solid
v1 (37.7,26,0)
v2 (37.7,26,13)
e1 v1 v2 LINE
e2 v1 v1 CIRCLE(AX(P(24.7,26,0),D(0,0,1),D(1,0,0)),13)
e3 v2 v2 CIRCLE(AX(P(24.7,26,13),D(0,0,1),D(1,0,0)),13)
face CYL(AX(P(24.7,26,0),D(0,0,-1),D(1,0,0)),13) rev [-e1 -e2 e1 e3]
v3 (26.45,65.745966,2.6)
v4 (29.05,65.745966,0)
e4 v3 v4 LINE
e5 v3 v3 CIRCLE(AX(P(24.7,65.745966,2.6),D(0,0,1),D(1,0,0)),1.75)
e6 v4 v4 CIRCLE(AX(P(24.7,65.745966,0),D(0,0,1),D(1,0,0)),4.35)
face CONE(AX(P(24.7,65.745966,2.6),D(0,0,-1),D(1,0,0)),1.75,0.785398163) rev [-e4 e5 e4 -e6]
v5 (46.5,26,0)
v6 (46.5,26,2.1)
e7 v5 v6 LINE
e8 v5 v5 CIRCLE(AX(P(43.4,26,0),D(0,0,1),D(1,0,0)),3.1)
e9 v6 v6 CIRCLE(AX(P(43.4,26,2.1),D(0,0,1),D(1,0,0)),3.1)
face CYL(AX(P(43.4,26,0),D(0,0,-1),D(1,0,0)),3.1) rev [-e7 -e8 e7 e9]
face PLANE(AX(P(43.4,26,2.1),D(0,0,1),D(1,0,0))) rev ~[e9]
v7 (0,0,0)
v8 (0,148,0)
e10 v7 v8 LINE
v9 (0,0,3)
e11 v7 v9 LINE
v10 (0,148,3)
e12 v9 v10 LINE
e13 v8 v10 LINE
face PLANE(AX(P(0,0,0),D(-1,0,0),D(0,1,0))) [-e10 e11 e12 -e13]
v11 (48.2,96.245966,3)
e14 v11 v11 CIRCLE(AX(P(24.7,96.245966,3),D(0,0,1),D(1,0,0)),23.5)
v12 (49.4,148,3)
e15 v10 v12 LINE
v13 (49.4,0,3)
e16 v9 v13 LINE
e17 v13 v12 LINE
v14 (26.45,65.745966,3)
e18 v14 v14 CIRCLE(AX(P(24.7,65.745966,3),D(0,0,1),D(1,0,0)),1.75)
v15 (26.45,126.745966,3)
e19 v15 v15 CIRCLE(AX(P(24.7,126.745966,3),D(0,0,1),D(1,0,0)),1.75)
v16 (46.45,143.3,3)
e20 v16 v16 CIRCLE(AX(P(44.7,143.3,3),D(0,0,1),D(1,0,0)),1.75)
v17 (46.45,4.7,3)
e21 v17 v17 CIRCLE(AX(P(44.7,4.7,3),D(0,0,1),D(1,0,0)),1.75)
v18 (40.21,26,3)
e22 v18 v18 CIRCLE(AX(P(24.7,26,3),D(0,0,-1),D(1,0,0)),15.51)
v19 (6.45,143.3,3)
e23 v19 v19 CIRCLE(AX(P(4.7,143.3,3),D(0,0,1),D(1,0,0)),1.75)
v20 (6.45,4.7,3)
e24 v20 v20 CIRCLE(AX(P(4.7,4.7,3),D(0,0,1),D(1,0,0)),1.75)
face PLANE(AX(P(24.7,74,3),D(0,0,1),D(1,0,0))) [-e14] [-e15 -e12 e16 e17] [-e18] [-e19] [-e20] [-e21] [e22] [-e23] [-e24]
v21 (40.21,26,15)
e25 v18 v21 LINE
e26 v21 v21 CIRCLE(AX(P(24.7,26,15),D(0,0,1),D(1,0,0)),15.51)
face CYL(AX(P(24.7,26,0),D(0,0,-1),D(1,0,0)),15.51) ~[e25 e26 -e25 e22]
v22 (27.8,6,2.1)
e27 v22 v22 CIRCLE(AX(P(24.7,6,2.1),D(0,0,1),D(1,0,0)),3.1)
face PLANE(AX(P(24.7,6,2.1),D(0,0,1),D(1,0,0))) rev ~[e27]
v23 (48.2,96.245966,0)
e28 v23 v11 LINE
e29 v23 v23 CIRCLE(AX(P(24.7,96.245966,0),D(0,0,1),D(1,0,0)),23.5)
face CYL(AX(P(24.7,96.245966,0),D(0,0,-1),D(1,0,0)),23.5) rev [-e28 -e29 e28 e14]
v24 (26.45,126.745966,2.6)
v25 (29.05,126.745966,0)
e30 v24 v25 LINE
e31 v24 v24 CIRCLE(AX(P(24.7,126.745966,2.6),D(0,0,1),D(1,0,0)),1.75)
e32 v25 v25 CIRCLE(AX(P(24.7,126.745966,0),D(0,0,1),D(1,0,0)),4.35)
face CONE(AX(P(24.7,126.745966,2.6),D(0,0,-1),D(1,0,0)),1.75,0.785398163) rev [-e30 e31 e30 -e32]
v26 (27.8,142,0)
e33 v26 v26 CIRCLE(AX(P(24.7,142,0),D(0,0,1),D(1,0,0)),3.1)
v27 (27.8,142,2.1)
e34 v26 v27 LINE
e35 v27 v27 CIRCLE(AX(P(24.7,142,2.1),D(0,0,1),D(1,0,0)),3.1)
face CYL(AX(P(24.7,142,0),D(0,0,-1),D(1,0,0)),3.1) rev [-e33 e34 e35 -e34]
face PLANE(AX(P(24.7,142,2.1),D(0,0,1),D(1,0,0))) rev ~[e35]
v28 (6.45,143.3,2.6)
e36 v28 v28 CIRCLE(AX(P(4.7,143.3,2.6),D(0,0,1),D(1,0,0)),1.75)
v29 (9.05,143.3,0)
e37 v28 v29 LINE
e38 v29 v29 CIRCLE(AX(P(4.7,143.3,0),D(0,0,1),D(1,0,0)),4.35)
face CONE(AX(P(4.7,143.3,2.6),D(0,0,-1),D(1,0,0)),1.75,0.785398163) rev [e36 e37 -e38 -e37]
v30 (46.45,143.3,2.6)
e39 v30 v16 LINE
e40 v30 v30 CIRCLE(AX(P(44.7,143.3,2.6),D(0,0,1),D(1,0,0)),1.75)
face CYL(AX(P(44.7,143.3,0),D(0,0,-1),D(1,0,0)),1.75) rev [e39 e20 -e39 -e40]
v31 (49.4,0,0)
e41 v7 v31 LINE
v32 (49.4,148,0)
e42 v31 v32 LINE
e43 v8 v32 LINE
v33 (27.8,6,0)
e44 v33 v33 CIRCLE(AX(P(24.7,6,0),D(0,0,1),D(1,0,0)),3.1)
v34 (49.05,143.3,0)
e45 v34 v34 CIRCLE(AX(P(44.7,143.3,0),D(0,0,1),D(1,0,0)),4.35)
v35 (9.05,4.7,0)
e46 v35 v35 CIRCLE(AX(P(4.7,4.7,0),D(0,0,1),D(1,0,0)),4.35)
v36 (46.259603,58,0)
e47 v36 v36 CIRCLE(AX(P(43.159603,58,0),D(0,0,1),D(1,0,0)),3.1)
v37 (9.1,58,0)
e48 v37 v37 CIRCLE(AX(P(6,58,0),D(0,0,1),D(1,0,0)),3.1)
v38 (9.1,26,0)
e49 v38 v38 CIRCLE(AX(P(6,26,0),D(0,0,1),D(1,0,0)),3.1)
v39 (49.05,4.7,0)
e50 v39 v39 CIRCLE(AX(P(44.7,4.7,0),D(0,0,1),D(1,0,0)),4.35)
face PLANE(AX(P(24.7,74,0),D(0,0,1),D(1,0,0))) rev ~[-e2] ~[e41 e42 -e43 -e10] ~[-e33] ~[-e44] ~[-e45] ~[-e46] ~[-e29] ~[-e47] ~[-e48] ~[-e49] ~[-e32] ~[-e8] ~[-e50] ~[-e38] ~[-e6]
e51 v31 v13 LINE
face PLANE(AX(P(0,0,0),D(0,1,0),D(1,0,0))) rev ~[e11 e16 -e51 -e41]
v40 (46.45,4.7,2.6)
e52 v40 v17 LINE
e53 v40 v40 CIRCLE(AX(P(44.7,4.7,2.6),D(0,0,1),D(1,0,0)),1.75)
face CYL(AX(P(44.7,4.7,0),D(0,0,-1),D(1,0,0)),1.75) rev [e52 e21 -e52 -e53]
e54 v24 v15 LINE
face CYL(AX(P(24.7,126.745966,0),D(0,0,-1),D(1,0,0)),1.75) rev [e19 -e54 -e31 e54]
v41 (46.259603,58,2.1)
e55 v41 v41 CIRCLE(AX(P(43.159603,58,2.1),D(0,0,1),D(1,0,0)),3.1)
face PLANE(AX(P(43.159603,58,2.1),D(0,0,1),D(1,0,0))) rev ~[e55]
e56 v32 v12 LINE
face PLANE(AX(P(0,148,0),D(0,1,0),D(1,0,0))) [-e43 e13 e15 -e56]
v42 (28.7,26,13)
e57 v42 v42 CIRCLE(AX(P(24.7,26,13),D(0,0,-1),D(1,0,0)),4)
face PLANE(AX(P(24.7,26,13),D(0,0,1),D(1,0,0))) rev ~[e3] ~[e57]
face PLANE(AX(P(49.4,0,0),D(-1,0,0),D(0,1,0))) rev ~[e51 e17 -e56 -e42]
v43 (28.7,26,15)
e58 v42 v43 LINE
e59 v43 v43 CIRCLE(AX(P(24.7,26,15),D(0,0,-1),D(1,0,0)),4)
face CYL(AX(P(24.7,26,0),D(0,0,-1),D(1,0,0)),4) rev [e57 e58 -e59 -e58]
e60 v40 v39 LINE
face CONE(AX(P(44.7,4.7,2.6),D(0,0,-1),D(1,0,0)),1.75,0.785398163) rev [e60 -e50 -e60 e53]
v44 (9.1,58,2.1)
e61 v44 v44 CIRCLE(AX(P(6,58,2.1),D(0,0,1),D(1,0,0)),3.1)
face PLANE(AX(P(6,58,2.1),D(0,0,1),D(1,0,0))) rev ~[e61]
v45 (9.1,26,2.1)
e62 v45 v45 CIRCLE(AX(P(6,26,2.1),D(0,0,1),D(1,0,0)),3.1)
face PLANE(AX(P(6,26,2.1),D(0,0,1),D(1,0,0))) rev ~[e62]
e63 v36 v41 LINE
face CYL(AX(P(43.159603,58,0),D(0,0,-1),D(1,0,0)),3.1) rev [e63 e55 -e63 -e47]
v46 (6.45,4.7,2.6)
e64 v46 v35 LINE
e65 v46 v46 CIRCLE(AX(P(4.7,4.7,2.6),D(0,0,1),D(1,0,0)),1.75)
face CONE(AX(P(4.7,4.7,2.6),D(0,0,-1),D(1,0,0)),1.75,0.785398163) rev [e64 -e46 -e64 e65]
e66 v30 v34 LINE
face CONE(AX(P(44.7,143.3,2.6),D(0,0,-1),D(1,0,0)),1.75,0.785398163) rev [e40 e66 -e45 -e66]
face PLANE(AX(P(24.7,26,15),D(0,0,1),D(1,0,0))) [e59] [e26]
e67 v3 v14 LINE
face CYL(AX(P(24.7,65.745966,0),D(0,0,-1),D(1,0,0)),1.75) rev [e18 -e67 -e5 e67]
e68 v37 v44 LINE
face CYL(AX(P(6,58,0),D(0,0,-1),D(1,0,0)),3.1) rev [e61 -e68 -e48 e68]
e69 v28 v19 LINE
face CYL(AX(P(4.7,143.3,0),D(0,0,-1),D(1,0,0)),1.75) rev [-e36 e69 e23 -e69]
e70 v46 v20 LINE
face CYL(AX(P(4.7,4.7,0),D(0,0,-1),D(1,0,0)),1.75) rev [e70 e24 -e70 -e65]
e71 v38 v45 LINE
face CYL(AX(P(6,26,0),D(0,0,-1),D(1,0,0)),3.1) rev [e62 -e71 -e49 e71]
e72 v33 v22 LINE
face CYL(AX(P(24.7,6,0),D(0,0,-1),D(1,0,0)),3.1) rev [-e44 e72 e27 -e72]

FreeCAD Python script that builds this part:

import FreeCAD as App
import Part
import Sketcher

V = App.Vector
Q = App.Units.Quantity


def edges_at(feature, points):
    """Names of the edges that pass closest to the given points."""
    edges = feature.Shape.Edges
    near = lambda p: min(range(len(edges)), key=lambda i: edges[i].distToShape(Part.Vertex(*p))[0])
    return sorted({f"Edge{near(p) + 1}" for p in points})

doc = App.newDocument("Part")
body = doc.addObject("PartDesign::Body", "Body")

# Sketch on XY plane
sketch1 = body.newObject("Sketcher::SketchObject", "Sketch")
sketch1.AttachmentSupport = (doc.getObject("XY_Plane"), [""])
sketch1.MapMode = "FlatFace"
sketch1.addGeometry(Part.LineSegment(V(0, 148, 0), V(0, 0, 0)), False)
sketch1.addGeometry(Part.LineSegment(V(0, 0, 0), V(49.4, 0, 0)), False)
sketch1.addGeometry(Part.LineSegment(V(49.4, 0, 0), V(49.4, 148, 0)), False)
sketch1.addGeometry(Part.LineSegment(V(49.4, 148, 0), V(0, 148, 0)), False)
sketch1.addGeometry(Part.Circle(V(4.7, 4.7, 0), V(0, 0, 1), 1.8), False)
sketch1.addGeometry(Part.Circle(V(24.7, 26, 0), V(0, 0, 1), 13), False)
sketch1.addGeometry(Part.Circle(V(44.7, 4.7, 0), V(0, 0, 1), 1.8), False)
sketch1.addGeometry(Part.Circle(V(24.7, 65.7, 0), V(0, 0, 1), 1.8), False)
sketch1.addGeometry(Part.Circle(V(4.7, 143.3, 0), V(0, 0, 1), 1.8), False)
sketch1.addGeometry(Part.Circle(V(24.7, 96.2, 0), V(0, 0, 1), 23.5), False)
sketch1.addGeometry(Part.Circle(V(24.7, 126.7, 0), V(0, 0, 1), 1.8), False)
sketch1.addGeometry(Part.Circle(V(44.7, 143.3, 0), V(0, 0, 1), 1.8), False)
sketch1.addConstraint(Sketcher.Constraint("Coincident", 0, 2, 1, 1))
sketch1.addConstraint(Sketcher.Constraint("Coincident", 1, 2, 2, 1))
sketch1.addConstraint(Sketcher.Constraint("Coincident", 2, 2, 3, 1))
sketch1.addConstraint(Sketcher.Constraint("Coincident", 3, 2, 0, 1))
sketch1.addConstraint(Sketcher.Constraint("Vertical", 0))
sketch1.addConstraint(Sketcher.Constraint("Horizontal", 1))
sketch1.addConstraint(Sketcher.Constraint("Vertical", 2))
sketch1.addConstraint(Sketcher.Constraint("Horizontal", 3))
sketch1.addConstraint(Sketcher.Constraint("Coincident", 0, 2, -1, 1))
sketch1.addConstraint(Sketcher.Constraint("Equal", 4, 6))
sketch1.addConstraint(Sketcher.Constraint("Equal", 6, 7))
sketch1.addConstraint(Sketcher.Constraint("Equal", 7, 8))
sketch1.addConstraint(Sketcher.Constraint("Equal", 8, 10))
sketch1.addConstraint(Sketcher.Constraint("Equal", 10, 11))
sketch1.addConstraint(Sketcher.Constraint("Horizontal", 4, 3, 6, 3))
sketch1.addConstraint(Sketcher.Constraint("Horizontal", 8, 3, 11, 3))
sketch1.addConstraint(Sketcher.Constraint("Vertical", 5, 3, 7, 3))
sketch1.addConstraint(Sketcher.Constraint("Vertical", 4, 3, 8, 3))
sketch1.addConstraint(Sketcher.Constraint("Vertical", 7, 3, 9, 3))
sketch1.addConstraint(Sketcher.Constraint("Vertical", 9, 3, 10, 3))
sketch1.addConstraint(Sketcher.Constraint("Vertical", 6, 3, 11, 3))
sketch1.addConstraint(Sketcher.Constraint("Diameter", 5, Q("26 mm")))
sketch1.addConstraint(Sketcher.Constraint("Diameter", 9, Q("47 mm")))
sketch1.addConstraint(Sketcher.Constraint("Diameter", 4, Q("3.5 mm")))
sketch1.addConstraint(Sketcher.Constraint("DistanceY", 0, 2, 0, 1, Q("148 mm")))
sketch1.addConstraint(Sketcher.Constraint("DistanceX", 1, 1, 1, 2, Q("49.4 mm")))
sketch1.addConstraint(Sketcher.Constraint("DistanceY", -1, 1, 5, 3, Q("26 mm")))
sketch1.addConstraint(Sketcher.Constraint("DistanceX", 4, 3, 5, 3, Q("20 mm")))
sketch1.addConstraint(Sketcher.Constraint("DistanceX", 5, 3, 6, 3, Q("20 mm")))
sketch1.addConstraint(Sketcher.Constraint("DistanceY", 7, 3, 10, 3, Q("61 mm")))
sketch1.addConstraint(Sketcher.Constraint("DistanceX", -1, 1, 4, 3, Q("4.7 mm")))
sketch1.addConstraint(Sketcher.Constraint("DistanceY", -1, 1, 4, 3, Q("4.7 mm")))
sketch1.addConstraint(Sketcher.Constraint("DistanceY", -1, 1, 8, 3, Q("143.3 mm")))
sketch1.addConstraint(Sketcher.Constraint("DistanceY", 7, 3, 9, 3, Q("30.5 mm")))
sketch1.addConstraint(Sketcher.Constraint("DistanceY", -1, 1, 7, 3, Q("65.745966 mm")))
pad1 = body.newObject("PartDesign::Pad", "Pad")
pad1.Profile = sketch1
pad1.Length = 3
doc.recompute()

chamfer = body.newObject("PartDesign::Chamfer", "Chamfer")
chamfer.Base = (pad1, edges_at(pad1, [
    (2.95, 4.7, 0),
    (42.95, 4.7, 0),
    (22.95, 65.746, 0),
    (22.95, 126.746, 0),
    (2.95, 143.3, 0),
    (42.95, 143.3, 0),
]))
chamfer.Size = 2.6

# Sketch on XY plane
sketch2 = body.newObject("Sketcher::SketchObject", "Sketch001")
sketch2.AttachmentSupport = (doc.getObject("XY_Plane"), [""])
sketch2.MapMode = "FlatFace"
sketch2.addGeometry(Part.Circle(V(24.7, 142, 0), V(0, 0, 1), 3.1), False)
sketch2.addGeometry(Part.Circle(V(24.7, 6, 0), V(0, 0, 1), 3.1), False)
sketch2.addGeometry(Part.Circle(V(43.4, 26, 0), V(0, 0, 1), 3.1), False)
sketch2.addGeometry(Part.Circle(V(6, 26, 0), V(0, 0, 1), 3.1), False)
sketch2.addGeometry(Part.Circle(V(6, 58, 0), V(0, 0, 1), 3.1), False)
sketch2.addGeometry(Part.Circle(V(43.2, 58, 0), V(0, 0, 1), 3.1), False)
sketch2.addConstraint(Sketcher.Constraint("Equal", 0, 1))
sketch2.addConstraint(Sketcher.Constraint("Equal", 1, 2))
sketch2.addConstraint(Sketcher.Constraint("Equal", 2, 3))
sketch2.addConstraint(Sketcher.Constraint("Equal", 3, 4))
sketch2.addConstraint(Sketcher.Constraint("Equal", 4, 5))
sketch2.addConstraint(Sketcher.Constraint("Horizontal", 2, 3, 3, 3))
sketch2.addConstraint(Sketcher.Constraint("Horizontal", 4, 3, 5, 3))
sketch2.addConstraint(Sketcher.Constraint("Vertical", 0, 3, 1, 3))
sketch2.addConstraint(Sketcher.Constraint("Vertical", 3, 3, 4, 3))
sketch2.addConstraint(Sketcher.Constraint("Diameter", 0, Q("6.2 mm")))
sketch2.addConstraint(Sketcher.Constraint("DistanceY", -1, 1, 0, 3, Q("142 mm")))
sketch2.addConstraint(Sketcher.Constraint("DistanceY", -1, 1, 1, 3, Q("6 mm")))
sketch2.addConstraint(Sketcher.Constraint("DistanceY", -1, 1, 2, 3, Q("26 mm")))
sketch2.addConstraint(Sketcher.Constraint("DistanceX", -1, 1, 3, 3, Q("6 mm")))
sketch2.addConstraint(Sketcher.Constraint("DistanceY", -1, 1, 4, 3, Q("58 mm")))
sketch2.addConstraint(Sketcher.Constraint("DistanceX", -1, 1, 0, 3, Q("24.7 mm")))
sketch2.addConstraint(Sketcher.Constraint("DistanceX", -1, 1, 2, 3, Q("43.4 mm")))
sketch2.addConstraint(Sketcher.Constraint("DistanceX", -1, 1, 5, 3, Q("43.159603 mm")))
pocket1 = body.newObject("PartDesign::Pocket", "Pocket")
pocket1.Profile = sketch2
pocket1.Length = 2.1
pocket1.Reversed = True

# Sketch on XY plane
sketch3 = body.newObject("Sketcher::SketchObject", "Sketch002")
sketch3.AttachmentSupport = (doc.getObject("XY_Plane"), [""])
sketch3.MapMode = "FlatFace"
sketch3.addGeometry(Part.Circle(V(25, 26, 0), V(0, 0, 1), 16), False)
sketch3.addConstraint(Sketcher.Constraint("Diameter", 0, Q("31.02 mm")))
sketch3.addConstraint(Sketcher.Constraint("DistanceY", -1, 1, 0, 3, Q("26 mm")))
sketch3.addConstraint(Sketcher.Constraint("DistanceX", -1, 1, 0, 3, Q("24.7 mm")))
pad2 = body.newObject("PartDesign::Pad", "Pad001")
pad2.Profile = sketch3
pad2.Length = 15

# Sketch on XY plane
sketch4 = body.newObject("Sketcher::SketchObject", "Sketch003")
sketch4.AttachmentSupport = (doc.getObject("XY_Plane"), [""])
sketch4.MapMode = "FlatFace"
sketch4.addGeometry(Part.Circle(V(25, 26, 0), V(0, 0, 1), 13), False)
sketch4.addConstraint(Sketcher.Constraint("Diameter", 0, Q("26 mm")))
sketch4.addConstraint(Sketcher.Constraint("DistanceY", -1, 1, 0, 3, Q("26 mm")))
sketch4.addConstraint(Sketcher.Constraint("DistanceX", -1, 1, 0, 3, Q("24.7 mm")))
pocket2 = body.newObject("PartDesign::Pocket", "Pocket001")
pocket2.Profile = sketch4
pocket2.Length = 13
pocket2.Reversed = True

# Sketch on XY plane
sketch5 = body.newObject("Sketcher::SketchObject", "Sketch004")
sketch5.AttachmentSupport = (doc.getObject("XY_Plane"), [""])
sketch5.MapMode = "FlatFace"
sketch5.addGeometry(Part.Circle(V(24.7, 26, 0), V(0, 0, 1), 4), False)
sketch5.addConstraint(Sketcher.Constraint("Diameter", 0, Q("8 mm")))
sketch5.addConstraint(Sketcher.Constraint("DistanceY", -1, 1, 0, 3, Q("26 mm")))
sketch5.addConstraint(Sketcher.Constraint("DistanceX", -1, 1, 0, 3, Q("24.7 mm")))
pocket3 = body.newObject("PartDesign::Pocket", "Pocket002")
pocket3.Profile = sketch5
pocket3.Type = "ThroughAll"
pocket3.Reversed = True

doc.recompute()
